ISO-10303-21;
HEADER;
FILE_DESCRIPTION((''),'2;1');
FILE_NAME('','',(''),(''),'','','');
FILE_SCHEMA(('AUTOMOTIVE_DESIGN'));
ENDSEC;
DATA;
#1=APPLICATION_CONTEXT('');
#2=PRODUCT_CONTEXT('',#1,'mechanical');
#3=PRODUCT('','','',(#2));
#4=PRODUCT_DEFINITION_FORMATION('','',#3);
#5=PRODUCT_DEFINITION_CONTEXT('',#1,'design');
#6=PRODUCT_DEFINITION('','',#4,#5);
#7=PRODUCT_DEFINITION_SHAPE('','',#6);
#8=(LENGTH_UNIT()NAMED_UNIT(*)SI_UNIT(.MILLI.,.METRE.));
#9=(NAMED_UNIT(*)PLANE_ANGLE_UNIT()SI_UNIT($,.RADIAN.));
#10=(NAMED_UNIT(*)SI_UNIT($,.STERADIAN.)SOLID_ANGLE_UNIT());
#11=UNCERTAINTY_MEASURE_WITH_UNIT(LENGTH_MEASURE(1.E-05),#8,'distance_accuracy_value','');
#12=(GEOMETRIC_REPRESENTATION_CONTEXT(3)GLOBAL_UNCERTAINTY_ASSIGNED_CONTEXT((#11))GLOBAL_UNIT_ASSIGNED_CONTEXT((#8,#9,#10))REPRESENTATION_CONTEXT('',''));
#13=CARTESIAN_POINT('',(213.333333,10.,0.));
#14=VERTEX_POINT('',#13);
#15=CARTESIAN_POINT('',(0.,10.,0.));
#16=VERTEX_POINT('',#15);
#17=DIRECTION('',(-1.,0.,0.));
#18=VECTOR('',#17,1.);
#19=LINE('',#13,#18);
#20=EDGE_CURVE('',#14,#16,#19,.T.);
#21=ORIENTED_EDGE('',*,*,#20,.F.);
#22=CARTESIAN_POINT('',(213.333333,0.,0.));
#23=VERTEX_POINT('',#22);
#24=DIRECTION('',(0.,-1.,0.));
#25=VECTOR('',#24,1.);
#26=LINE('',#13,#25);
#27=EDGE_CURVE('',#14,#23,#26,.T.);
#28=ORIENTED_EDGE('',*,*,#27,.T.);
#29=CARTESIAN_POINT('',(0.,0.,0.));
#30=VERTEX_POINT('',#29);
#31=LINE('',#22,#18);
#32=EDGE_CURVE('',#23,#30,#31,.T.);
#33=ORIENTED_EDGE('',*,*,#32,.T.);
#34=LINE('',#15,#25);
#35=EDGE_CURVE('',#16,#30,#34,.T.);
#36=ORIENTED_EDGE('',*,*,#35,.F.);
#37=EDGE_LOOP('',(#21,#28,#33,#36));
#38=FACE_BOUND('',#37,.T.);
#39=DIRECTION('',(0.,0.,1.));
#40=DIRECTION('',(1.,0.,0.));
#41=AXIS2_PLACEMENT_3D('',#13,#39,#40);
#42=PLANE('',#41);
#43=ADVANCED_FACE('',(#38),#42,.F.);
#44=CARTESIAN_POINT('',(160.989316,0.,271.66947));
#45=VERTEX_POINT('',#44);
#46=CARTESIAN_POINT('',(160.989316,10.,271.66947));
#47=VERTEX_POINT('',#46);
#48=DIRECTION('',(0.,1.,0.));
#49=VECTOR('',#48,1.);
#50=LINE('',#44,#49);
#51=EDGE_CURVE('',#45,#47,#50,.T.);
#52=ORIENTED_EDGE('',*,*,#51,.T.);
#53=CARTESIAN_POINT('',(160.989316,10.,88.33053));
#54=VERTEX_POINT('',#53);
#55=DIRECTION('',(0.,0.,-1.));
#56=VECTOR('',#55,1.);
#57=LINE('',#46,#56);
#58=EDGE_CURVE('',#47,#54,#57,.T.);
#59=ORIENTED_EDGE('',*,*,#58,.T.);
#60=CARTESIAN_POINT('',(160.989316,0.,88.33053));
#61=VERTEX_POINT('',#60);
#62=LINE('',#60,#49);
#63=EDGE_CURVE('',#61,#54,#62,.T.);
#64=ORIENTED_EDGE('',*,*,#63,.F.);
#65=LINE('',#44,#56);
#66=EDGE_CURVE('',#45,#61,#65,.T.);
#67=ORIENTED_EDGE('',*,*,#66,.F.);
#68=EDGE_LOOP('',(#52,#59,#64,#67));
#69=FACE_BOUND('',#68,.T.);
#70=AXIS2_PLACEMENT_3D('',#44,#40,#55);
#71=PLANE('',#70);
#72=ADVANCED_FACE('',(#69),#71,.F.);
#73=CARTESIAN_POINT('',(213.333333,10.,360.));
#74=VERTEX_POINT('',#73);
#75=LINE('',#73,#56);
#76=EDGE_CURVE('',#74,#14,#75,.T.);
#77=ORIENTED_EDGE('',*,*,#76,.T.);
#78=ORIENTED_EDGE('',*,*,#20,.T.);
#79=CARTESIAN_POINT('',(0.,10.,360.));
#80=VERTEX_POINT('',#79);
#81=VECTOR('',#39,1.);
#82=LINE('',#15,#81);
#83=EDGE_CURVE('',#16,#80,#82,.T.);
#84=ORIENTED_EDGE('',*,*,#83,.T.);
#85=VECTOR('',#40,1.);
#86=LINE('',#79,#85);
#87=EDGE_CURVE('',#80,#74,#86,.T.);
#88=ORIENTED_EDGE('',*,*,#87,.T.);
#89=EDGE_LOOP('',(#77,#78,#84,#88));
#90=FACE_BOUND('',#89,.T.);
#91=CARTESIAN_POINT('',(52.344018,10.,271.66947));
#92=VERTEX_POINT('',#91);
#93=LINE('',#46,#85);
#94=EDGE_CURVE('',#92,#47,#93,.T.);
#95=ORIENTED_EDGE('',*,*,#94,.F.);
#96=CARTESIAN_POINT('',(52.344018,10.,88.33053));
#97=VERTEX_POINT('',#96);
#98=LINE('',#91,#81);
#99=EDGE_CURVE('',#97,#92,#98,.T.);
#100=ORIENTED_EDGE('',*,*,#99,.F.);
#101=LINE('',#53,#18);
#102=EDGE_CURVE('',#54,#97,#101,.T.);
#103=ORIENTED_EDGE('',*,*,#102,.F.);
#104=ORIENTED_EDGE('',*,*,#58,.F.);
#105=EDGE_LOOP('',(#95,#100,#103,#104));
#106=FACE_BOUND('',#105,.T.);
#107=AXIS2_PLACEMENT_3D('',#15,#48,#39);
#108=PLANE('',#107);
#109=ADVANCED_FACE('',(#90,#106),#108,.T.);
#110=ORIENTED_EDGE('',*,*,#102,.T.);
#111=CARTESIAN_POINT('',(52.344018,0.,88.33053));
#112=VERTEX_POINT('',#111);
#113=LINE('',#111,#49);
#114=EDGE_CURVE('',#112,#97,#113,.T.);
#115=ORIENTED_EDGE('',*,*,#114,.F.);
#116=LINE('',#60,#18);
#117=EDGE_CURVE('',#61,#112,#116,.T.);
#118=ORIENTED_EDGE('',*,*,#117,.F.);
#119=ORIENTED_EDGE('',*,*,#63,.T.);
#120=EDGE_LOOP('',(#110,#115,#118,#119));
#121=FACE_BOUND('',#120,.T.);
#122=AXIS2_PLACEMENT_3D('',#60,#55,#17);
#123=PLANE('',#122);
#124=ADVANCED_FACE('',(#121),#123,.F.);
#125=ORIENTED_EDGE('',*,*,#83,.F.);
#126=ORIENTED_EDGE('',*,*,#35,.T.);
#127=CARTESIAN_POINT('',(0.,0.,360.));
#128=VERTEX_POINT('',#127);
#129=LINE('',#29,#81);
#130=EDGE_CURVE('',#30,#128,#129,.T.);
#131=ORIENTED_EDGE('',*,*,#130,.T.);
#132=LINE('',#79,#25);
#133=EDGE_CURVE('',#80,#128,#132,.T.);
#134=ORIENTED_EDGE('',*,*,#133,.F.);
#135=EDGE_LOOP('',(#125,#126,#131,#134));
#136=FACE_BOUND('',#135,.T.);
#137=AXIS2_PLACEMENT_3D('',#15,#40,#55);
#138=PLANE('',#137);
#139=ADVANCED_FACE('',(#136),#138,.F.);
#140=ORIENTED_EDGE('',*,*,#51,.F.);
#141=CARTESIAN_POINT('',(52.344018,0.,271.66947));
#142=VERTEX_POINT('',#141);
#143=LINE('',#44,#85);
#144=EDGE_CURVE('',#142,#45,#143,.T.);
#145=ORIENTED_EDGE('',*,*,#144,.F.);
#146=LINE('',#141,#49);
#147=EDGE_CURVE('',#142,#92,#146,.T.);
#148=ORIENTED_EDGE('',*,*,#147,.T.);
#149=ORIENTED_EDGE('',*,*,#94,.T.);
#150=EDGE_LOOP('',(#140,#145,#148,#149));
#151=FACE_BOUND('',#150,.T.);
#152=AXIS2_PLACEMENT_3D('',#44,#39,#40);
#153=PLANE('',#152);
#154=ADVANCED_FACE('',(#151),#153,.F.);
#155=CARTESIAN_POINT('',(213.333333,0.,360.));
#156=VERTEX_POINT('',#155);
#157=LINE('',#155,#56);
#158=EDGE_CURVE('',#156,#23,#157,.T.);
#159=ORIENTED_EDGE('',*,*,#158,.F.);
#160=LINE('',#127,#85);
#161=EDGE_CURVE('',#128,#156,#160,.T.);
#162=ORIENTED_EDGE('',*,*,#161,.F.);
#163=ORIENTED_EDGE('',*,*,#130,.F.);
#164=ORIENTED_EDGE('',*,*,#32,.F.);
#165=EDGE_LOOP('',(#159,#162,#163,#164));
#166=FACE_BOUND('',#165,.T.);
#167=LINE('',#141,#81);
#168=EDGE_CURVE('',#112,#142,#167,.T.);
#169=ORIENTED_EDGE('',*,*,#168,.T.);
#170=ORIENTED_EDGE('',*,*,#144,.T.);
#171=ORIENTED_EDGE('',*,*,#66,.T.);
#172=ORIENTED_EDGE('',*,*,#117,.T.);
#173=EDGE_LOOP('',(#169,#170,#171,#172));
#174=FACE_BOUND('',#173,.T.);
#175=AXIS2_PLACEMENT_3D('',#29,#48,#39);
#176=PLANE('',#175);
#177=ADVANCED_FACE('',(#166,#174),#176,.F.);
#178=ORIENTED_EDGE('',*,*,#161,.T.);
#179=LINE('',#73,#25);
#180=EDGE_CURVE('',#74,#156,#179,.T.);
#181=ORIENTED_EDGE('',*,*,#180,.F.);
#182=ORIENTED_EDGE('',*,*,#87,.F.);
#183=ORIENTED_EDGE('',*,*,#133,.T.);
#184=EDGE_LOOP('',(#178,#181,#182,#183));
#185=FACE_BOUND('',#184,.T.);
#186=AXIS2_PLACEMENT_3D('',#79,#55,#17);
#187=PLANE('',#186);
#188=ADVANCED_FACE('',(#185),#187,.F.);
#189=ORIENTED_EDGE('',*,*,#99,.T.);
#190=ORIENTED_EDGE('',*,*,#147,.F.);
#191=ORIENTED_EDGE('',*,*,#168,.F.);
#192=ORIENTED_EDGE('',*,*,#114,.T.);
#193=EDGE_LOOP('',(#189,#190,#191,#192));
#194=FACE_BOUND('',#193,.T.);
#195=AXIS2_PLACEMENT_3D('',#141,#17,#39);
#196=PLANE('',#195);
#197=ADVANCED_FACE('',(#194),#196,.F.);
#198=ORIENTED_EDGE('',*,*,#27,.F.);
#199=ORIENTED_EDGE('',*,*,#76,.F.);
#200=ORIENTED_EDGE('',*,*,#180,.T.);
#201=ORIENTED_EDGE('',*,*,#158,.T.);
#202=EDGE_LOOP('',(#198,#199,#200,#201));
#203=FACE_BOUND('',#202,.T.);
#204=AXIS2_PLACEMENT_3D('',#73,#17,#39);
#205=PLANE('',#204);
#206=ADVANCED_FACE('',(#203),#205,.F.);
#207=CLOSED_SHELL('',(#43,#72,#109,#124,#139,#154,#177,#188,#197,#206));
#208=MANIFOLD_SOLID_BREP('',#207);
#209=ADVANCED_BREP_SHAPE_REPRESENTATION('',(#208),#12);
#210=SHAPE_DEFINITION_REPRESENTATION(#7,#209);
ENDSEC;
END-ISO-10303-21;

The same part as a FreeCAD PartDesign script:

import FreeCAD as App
import Part
import Sketcher
from FreeCAD import Vector


def add_polygon(sketch, points):
    """Adds a closed chain of lines whose ends are joined by coincident constraints."""
    first, n = sketch.GeometryCount, len(points)
    for a, b in zip(points, points[1:] + points[:1]):
        sketch.addGeometry(Part.LineSegment(App.Vector(*a, 0), App.Vector(*b, 0)), False)
    for i in range(n):
        sketch.addConstraint(Sketcher.Constraint("Coincident", first + i, 2, first + (i + 1) % n, 1))

doc = App.newDocument("Part")
body = doc.addObject("PartDesign::Body", "Body")

sketch1 = body.newObject("Sketcher::SketchObject", "Sketch")
sketch1.AttachmentSupport = (doc.getObject("XZ_Plane"), [""])
sketch1.MapMode = "FlatFace"
add_polygon(sketch1, [(0, 0), (0, 360), (213, 360), (213, 0)])
sketch1.addConstraint(Sketcher.Constraint("Vertical", 0))
sketch1.addConstraint(Sketcher.Constraint("Horizontal", 1))
sketch1.addConstraint(Sketcher.Constraint("Vertical", 2))
sketch1.addConstraint(Sketcher.Constraint("Horizontal", 3))
sketch1.addConstraint(Sketcher.Constraint("Coincident", 3, 2, -1, 1))
sketch1.addConstraint(Sketcher.Constraint("DistanceY", 0, 1, 0, 2, 360.0))
sketch1.addConstraint(Sketcher.Constraint("DistanceX", 1, 1, 1, 2, 213.333333))
pad1 = body.newObject("PartDesign::Pad", "Pad")
pad1.Profile = sketch1
pad1.Length = 10
pad1.Reversed = True

sketch2 = body.newObject("Sketcher::SketchObject", "Sketch001")
sketch2.AttachmentSupport = (doc.getObject("XZ_Plane"), [""])
sketch2.MapMode = "FlatFace"
sketch2.AttachmentOffset = App.Placement(Vector(0, 0, -10), App.Rotation())
add_polygon(sketch2, [(52, 88), (52, 272), (161, 272), (161, 88)])
sketch2.addConstraint(Sketcher.Constraint("Vertical", 0))
sketch2.addConstraint(Sketcher.Constraint("Horizontal", 1))
sketch2.addConstraint(Sketcher.Constraint("Vertical", 2))
sketch2.addConstraint(Sketcher.Constraint("Horizontal", 3))
sketch2.addConstraint(Sketcher.Constraint("DistanceY", 0, 1, 0, 2, 183.33894))
sketch2.addConstraint(Sketcher.Constraint("DistanceX", 1, 1, 1, 2, 108.645298))
sketch2.addConstraint(Sketcher.Constraint("DistanceY", -1, 1, 0, 2, 271.66947))
sketch2.addConstraint(Sketcher.Constraint("DistanceX", -1, 1, 0, 2, 52.344018))
pocket1 = body.newObject("PartDesign::Pocket", "Pocket")
pocket1.Profile = sketch2
pocket1.Length = 10
pocket1.Reversed = True

doc.recompute()
